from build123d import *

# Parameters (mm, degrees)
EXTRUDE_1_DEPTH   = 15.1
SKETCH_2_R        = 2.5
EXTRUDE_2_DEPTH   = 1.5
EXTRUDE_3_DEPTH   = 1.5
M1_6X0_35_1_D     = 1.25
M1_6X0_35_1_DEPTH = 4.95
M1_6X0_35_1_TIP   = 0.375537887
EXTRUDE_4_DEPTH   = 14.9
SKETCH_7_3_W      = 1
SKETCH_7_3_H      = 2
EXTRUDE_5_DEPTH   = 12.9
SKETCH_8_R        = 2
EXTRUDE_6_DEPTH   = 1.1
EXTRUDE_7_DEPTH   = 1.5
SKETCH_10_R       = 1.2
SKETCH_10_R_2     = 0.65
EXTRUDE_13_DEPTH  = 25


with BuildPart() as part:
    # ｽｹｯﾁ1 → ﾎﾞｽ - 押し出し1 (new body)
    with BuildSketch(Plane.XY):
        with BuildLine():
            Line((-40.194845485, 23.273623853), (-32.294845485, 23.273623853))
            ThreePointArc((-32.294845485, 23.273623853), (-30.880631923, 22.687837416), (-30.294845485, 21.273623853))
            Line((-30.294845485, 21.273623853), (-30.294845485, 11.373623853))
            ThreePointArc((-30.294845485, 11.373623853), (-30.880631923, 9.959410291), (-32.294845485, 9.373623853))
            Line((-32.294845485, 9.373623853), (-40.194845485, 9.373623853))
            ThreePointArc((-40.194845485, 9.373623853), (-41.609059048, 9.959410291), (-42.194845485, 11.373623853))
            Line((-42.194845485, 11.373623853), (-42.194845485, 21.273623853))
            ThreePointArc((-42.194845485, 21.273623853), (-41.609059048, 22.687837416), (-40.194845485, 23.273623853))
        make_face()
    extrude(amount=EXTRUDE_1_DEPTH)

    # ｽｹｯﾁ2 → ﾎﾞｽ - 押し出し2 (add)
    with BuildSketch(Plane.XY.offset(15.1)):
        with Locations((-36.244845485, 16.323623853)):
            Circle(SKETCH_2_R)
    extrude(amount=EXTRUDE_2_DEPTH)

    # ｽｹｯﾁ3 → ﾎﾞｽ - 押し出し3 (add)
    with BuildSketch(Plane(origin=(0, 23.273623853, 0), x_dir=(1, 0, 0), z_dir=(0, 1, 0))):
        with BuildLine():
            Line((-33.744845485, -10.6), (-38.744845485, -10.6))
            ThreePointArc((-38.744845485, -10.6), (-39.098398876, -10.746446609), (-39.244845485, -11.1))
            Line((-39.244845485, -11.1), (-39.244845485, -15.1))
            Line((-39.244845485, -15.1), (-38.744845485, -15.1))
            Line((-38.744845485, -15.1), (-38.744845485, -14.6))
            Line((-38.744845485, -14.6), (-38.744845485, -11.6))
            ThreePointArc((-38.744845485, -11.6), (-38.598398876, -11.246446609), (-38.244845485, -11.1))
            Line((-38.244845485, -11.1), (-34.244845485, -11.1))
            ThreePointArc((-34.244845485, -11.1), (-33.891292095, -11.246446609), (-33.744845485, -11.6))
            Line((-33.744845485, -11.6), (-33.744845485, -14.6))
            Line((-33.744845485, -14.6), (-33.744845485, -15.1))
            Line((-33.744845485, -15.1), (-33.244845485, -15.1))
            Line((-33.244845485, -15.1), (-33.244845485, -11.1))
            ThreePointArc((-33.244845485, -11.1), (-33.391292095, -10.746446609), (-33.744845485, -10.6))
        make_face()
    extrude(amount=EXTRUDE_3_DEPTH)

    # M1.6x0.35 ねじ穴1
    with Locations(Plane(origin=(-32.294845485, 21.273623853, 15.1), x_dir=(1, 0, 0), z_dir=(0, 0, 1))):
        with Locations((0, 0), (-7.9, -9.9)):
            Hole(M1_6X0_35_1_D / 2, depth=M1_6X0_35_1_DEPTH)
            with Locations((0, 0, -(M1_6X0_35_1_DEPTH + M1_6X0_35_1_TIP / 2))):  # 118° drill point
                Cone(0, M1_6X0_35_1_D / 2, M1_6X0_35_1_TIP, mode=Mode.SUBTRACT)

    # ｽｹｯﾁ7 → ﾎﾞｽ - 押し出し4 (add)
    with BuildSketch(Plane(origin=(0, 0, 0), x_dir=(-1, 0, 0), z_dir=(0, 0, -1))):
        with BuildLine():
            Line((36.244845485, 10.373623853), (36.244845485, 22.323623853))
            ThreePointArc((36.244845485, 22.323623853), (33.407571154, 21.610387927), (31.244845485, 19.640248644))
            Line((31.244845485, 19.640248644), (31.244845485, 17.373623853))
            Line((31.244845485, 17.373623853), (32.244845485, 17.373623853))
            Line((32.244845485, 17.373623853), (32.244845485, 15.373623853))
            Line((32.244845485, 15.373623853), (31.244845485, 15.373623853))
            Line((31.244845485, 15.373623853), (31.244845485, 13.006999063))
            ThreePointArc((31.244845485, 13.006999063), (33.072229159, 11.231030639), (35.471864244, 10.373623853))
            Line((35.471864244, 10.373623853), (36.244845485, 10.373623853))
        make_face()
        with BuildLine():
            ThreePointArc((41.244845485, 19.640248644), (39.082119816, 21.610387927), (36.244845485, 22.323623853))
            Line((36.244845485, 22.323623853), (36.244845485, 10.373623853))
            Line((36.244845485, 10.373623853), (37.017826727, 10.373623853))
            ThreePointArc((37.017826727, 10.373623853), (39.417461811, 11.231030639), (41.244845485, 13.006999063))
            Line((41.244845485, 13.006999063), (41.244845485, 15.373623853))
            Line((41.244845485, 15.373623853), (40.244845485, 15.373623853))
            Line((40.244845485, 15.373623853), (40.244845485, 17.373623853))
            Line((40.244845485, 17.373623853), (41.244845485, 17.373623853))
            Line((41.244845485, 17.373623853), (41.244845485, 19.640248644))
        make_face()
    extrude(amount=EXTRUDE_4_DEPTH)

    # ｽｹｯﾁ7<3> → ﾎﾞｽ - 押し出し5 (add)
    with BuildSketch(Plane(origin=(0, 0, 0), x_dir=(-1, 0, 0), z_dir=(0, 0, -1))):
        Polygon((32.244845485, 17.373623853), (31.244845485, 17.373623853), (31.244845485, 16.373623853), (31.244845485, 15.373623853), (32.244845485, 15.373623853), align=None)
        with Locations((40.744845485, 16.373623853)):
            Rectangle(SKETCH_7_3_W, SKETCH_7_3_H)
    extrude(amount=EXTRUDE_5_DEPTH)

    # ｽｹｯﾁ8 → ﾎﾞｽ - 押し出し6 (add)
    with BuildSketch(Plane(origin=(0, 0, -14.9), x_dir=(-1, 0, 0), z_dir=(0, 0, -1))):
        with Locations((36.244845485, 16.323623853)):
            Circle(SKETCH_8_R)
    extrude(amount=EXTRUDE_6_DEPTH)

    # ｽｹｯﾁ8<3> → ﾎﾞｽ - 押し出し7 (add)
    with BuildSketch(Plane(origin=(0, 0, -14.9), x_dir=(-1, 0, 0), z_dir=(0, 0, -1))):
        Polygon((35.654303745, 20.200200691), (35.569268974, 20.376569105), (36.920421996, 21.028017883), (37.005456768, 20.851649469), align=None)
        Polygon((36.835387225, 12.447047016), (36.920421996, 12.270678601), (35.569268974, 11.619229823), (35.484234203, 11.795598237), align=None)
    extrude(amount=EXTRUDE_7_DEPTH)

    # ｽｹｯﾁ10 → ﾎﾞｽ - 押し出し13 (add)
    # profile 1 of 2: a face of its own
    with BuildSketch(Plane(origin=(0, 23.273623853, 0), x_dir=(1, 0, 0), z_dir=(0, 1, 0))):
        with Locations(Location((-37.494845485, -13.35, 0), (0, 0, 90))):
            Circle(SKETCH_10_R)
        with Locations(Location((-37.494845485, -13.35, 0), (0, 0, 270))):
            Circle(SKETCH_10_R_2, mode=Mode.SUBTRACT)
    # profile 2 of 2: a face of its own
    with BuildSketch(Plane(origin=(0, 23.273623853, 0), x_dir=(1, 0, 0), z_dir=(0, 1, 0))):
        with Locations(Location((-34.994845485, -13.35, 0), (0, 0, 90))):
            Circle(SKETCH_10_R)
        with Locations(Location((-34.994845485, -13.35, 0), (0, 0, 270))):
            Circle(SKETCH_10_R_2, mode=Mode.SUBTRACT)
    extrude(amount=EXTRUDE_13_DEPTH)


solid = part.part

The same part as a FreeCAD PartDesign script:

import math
import FreeCAD as App
import Part
import Sketcher

V = App.Vector
Q = App.Units.Quantity


def add_polygon(sketch, points):
    """Adds a closed chain of lines whose ends are joined by coincident constraints."""
    first, n = sketch.GeometryCount, len(points)
    for a, b in zip(points, points[1:] + points[:1]):
        sketch.addGeometry(Part.LineSegment(App.Vector(*a, 0), App.Vector(*b, 0)), False)
    for i in range(n):
        sketch.addConstraint(Sketcher.Constraint("Coincident", first + i, 2, first + (i + 1) % n, 1))

doc = App.newDocument("Part")
params = doc.addObject("Spreadsheet::Sheet", "Params")
for row, (alias, value) in enumerate([
    ("sketch1_radius", "2 mm"),
    ("sketch1_width", "7.9 mm"),
    ("sketch1_height", "9.9 mm"),
    ("pad1_length", "15.1 mm"),
    ("sketch2_diameter", "5 mm"),
    ("pad2_length", "1.5 mm"),
    ("sketch3_radius", "0.5 mm"),
    ("sketch3_width", "5 mm"),
    ("pad3_length", "1.5 mm"),
    ("sketch4_diameter", "1.25 mm"),
    ("hole_diameter", "1.25 mm"),
    ("hole_depth", "4.95 mm"),
    ("sketch5_radius", "6 mm"),
    ("sketch5_width", "1 mm"),
    ("sketch5_height", "2 mm"),
    ("pad4_length", "14.9 mm"),
    ("sketch6_width", "1 mm"),
    ("sketch6_height", "2 mm"),
    ("pad5_length", "12.9 mm"),
    ("sketch7_diameter", "4 mm"),
    ("pad6_length", "1.1 mm"),
    ("sketch8_length", "1.5 mm"),
    ("pad7_length", "1.5 mm"),
    ("sketch9_diameter", "2.4 mm"),
    ("sketch9_diameter2", "1.3 mm"),
    ("pad8_length", "25 mm"),
], start=1):
    params.set(f"A{row}", alias)
    params.set(f"B{row}", "=" + value)
    params.setAlias(f"B{row}", alias)

body = doc.addObject("PartDesign::Body", "Body")

sketch1 = body.newObject("Sketcher::SketchObject", "Sketch")
sketch1.AttachmentSupport = (doc.getObject("XY_Plane"), [""])
sketch1.MapMode = "FlatFace"
sketch1.addGeometry(Part.LineSegment(V(-32.3, 23.3, 0), V(-40.2, 23.3, 0)), False)
sketch1.addGeometry(Part.ArcOfCircle(Part.Circle(V(-40.2, 21.3, 0), V(0, 0, 1), 2), math.radians(90), math.radians(180)), False)
sketch1.addGeometry(Part.LineSegment(V(-42.2, 21.3, 0), V(-42.2, 11.4, 0)), False)
sketch1.addGeometry(Part.ArcOfCircle(Part.Circle(V(-40.2, 11.4, 0), V(0, 0, 1), 2), math.radians(180), math.radians(270)), False)
sketch1.addGeometry(Part.LineSegment(V(-40.2, 9.4, 0), V(-32.3, 9.4, 0)), False)
sketch1.addGeometry(Part.ArcOfCircle(Part.Circle(V(-32.3, 11.4, 0), V(0, 0, 1), 2), math.radians(-90), math.radians(0)), False)
sketch1.addGeometry(Part.LineSegment(V(-30.3, 11.4, 0), V(-30.3, 21.3, 0)), False)
sketch1.addGeometry(Part.ArcOfCircle(Part.Circle(V(-32.3, 21.3, 0), V(0, 0, 1), 2), math.radians(0), math.radians(90)), False)
sketch1.addConstraint(Sketcher.Constraint("Tangent", 0, 2, 1, 1))
sketch1.addConstraint(Sketcher.Constraint("Tangent", 1, 2, 2, 1))
sketch1.addConstraint(Sketcher.Constraint("Tangent", 2, 2, 3, 1))
sketch1.addConstraint(Sketcher.Constraint("Tangent", 3, 2, 4, 1))
sketch1.addConstraint(Sketcher.Constraint("Tangent", 4, 2, 5, 1))
sketch1.addConstraint(Sketcher.Constraint("Tangent", 5, 2, 6, 1))
sketch1.addConstraint(Sketcher.Constraint("Tangent", 6, 2, 7, 1))
sketch1.addConstraint(Sketcher.Constraint("Tangent", 7, 2, 0, 1))
sketch1.addConstraint(Sketcher.Constraint("Horizontal", 0))
sketch1.addConstraint(Sketcher.Constraint("Vertical", 2))
sketch1.addConstraint(Sketcher.Constraint("Horizontal", 4))
sketch1.addConstraint(Sketcher.Constraint("Vertical", 6))
sketch1.addConstraint(Sketcher.Constraint("Equal", 1, 3))
sketch1.addConstraint(Sketcher.Constraint("Equal", 3, 5))
sketch1.addConstraint(Sketcher.Constraint("Equal", 5, 7))
sketch1.addConstraint(Sketcher.Constraint("Radius", 1, Q("2 mm")))
sketch1.addConstraint(Sketcher.Constraint("DistanceX", 0, 2, 0, 1, Q("7.9 mm")))
sketch1.addConstraint(Sketcher.Constraint("DistanceY", 2, 2, 2, 1, Q("9.9 mm")))
sketch1.addConstraint(Sketcher.Constraint("DistanceX", 1, 3, -1, 1, Q("40.194845 mm")))
sketch1.addConstraint(Sketcher.Constraint("DistanceY", -1, 1, 1, 3, Q("21.273624 mm")))
sketch1.setExpression("Constraints[15]", "Params.sketch1_radius")
sketch1.setExpression("Constraints[16]", "Params.sketch1_width")
sketch1.setExpression("Constraints[17]", "Params.sketch1_height")
pad1 = body.newObject("PartDesign::Pad", "Pad")
pad1.Profile = sketch1
pad1.setExpression("Length", "Params.pad1_length")

sketch2 = body.newObject("Sketcher::SketchObject", "Sketch001")
sketch2.AttachmentSupport = (doc.getObject("XY_Plane"), [""])
sketch2.MapMode = "FlatFace"
sketch2.AttachmentOffset = App.Placement(V(0, 0, 15.1), App.Rotation())
sketch2.addGeometry(Part.Circle(V(-36.2, 16.3, 0), V(0, 0, 1), 2.5), False)
sketch2.addConstraint(Sketcher.Constraint("Diameter", 0, Q("5 mm")))
sketch2.addConstraint(Sketcher.Constraint("DistanceX", 0, 3, -1, 1, Q("36.244845 mm")))
sketch2.addConstraint(Sketcher.Constraint("DistanceY", -1, 1, 0, 3, Q("16.323624 mm")))
sketch2.setExpression("Constraints[0]", "Params.sketch2_diameter")
pad2 = body.newObject("PartDesign::Pad", "Pad001")
pad2.Profile = sketch2
pad2.setExpression("Length", "Params.pad2_length")

sketch3 = body.newObject("Sketcher::SketchObject", "Sketch002")
sketch3.AttachmentSupport = (doc.getObject("XZ_Plane"), [""])
sketch3.MapMode = "FlatFace"
sketch3.AttachmentOffset = App.Placement(V(0, 0, -23.273624), App.Rotation())
sketch3.addGeometry(Part.LineSegment(V(-33.74, 10.6, 0), V(-38.74, 10.6, 0)), False)
sketch3.addGeometry(Part.ArcOfCircle(Part.Circle(V(-38.74, 11.1, 0), V(0, 0, 1), 0.5), math.radians(180), math.radians(270)), False)
sketch3.addGeometry(Part.LineSegment(V(-39.24, 11.1, 0), V(-39.24, 15.1, 0)), False)
sketch3.addGeometry(Part.LineSegment(V(-39.24, 15.1, 0), V(-38.74, 15.1, 0)), False)
sketch3.addGeometry(Part.LineSegment(V(-38.74, 15.1, 0), V(-38.74, 11.6, 0)), False)
sketch3.addGeometry(Part.ArcOfCircle(Part.Circle(V(-38.24, 11.6, 0), V(0, 0, 1), 0.5), math.radians(180), math.radians(270)), False)
sketch3.addGeometry(Part.LineSegment(V(-38.24, 11.1, 0), V(-34.24, 11.1, 0)), False)
sketch3.addGeometry(Part.ArcOfCircle(Part.Circle(V(-34.24, 11.6, 0), V(0, 0, 1), 0.5), math.radians(-90), math.radians(0)), False)
sketch3.addGeometry(Part.LineSegment(V(-33.74, 11.6, 0), V(-33.74, 15.1, 0)), False)
sketch3.addGeometry(Part.LineSegment(V(-33.74, 15.1, 0), V(-33.24, 15.1, 0)), False)
sketch3.addGeometry(Part.LineSegment(V(-33.24, 15.1, 0), V(-33.24, 11.1, 0)), False)
sketch3.addGeometry(Part.ArcOfCircle(Part.Circle(V(-33.74, 11.1, 0), V(0, 0, 1), 0.5), math.radians(-90), math.radians(0)), False)
sketch3.addConstraint(Sketcher.Constraint("Tangent", 0, 2, 1, 2))
sketch3.addConstraint(Sketcher.Constraint("Tangent", 1, 1, 2, 1))
sketch3.addConstraint(Sketcher.Constraint("Coincident", 2, 2, 3, 1))
sketch3.addConstraint(Sketcher.Constraint("Coincident", 3, 2, 4, 1))
sketch3.addConstraint(Sketcher.Constraint("Tangent", 4, 2, 5, 1))
sketch3.addConstraint(Sketcher.Constraint("Tangent", 5, 2, 6, 1))
sketch3.addConstraint(Sketcher.Constraint("Tangent", 6, 2, 7, 1))
sketch3.addConstraint(Sketcher.Constraint("Tangent", 7, 2, 8, 1))
sketch3.addConstraint(Sketcher.Constraint("Coincident", 8, 2, 9, 1))
sketch3.addConstraint(Sketcher.Constraint("Coincident", 9, 2, 10, 1))
sketch3.addConstraint(Sketcher.Constraint("Tangent", 10, 2, 11, 2))
sketch3.addConstraint(Sketcher.Constraint("Tangent", 11, 1, 0, 1))
sketch3.addConstraint(Sketcher.Constraint("Horizontal", 0))
sketch3.addConstraint(Sketcher.Constraint("Vertical", 2))
sketch3.addConstraint(Sketcher.Constraint("Horizontal", 3))
sketch3.addConstraint(Sketcher.Constraint("Vertical", 4))
sketch3.addConstraint(Sketcher.Constraint("Horizontal", 6))
sketch3.addConstraint(Sketcher.Constraint("Vertical", 8))
sketch3.addConstraint(Sketcher.Constraint("Horizontal", 9))
sketch3.addConstraint(Sketcher.Constraint("Vertical", 10))
sketch3.addConstraint(Sketcher.Constraint("Equal", 1, 5))
sketch3.addConstraint(Sketcher.Constraint("Equal", 5, 7))
sketch3.addConstraint(Sketcher.Constraint("Equal", 7, 11))
sketch3.addConstraint(Sketcher.Constraint("Horizontal", 1, 1, 5, 2))
sketch3.addConstraint(Sketcher.Constraint("Horizontal", 3, 2, 8, 2))
sketch3.addConstraint(Sketcher.Constraint("Vertical", 0, 2, 3, 2))
sketch3.addConstraint(Sketcher.Constraint("Vertical", 11, 3, 7, 2))
sketch3.addConstraint(Sketcher.Constraint("Equal", 6, 2))
sketch3.addConstraint(Sketcher.Constraint("Radius", 1, Q("0.5 mm")))
sketch3.addConstraint(Sketcher.Constraint("DistanceX", 0, 2, 0, 1, Q("5 mm")))
sketch3.addConstraint(Sketcher.Constraint("DistanceY", -1, 1, 1, 3, Q("11.1 mm")))
sketch3.addConstraint(Sketcher.Constraint("DistanceX", 1, 3, -1, 1, Q("38.744845 mm")))
sketch3.setExpression("Constraints[28]", "Params.sketch3_radius")
sketch3.setExpression("Constraints[29]", "Params.sketch3_width")
pad3 = body.newObject("PartDesign::Pad", "Pad002")
pad3.Profile = sketch3
pad3.setExpression("Length", "Params.pad3_length")
pad3.Reversed = True

sketch4 = body.newObject("Sketcher::SketchObject", "Sketch003")
sketch4.AttachmentSupport = (doc.getObject("XY_Plane"), [""])
sketch4.MapMode = "FlatFace"
sketch4.AttachmentOffset = App.Placement(V(0, 0, 15.1), App.Rotation())
sketch4.addGeometry(Part.Circle(V(-32.3, 21.3, 0), V(0, 0, 1), 0.6), False)
sketch4.addGeometry(Part.Circle(V(-40.2, 11.4, 0), V(0, 0, 1), 0.6), False)
sketch4.addConstraint(Sketcher.Constraint("Equal", 0, 1))
sketch4.addConstraint(Sketcher.Constraint("Diameter", 0, Q("1.25 mm")))
sketch4.addConstraint(Sketcher.Constraint("DistanceX", 1, 3, 0, 3, Q("7.9 mm")))
sketch4.addConstraint(Sketcher.Constraint("DistanceY", 1, 3, 0, 3, Q("9.9 mm")))
sketch4.addConstraint(Sketcher.Constraint("DistanceX", 0, 3, -1, 1, Q("32.294845 mm")))
sketch4.addConstraint(Sketcher.Constraint("DistanceY", -1, 1, 0, 3, Q("21.273624 mm")))
sketch4.setExpression("Constraints[1]", "Params.sketch4_diameter")
doc.recompute()
hole = body.newObject("PartDesign::Hole", "Hole")
hole.Profile = sketch4
hole.ThreadType = "None"
hole.setExpression("Diameter", "Params.hole_diameter")
hole.DepthType = "Dimension"
hole.setExpression("Depth", "Params.hole_depth")
hole.DrillPoint = "Angled"
hole.DrillPointAngle = 118

sketch5 = body.newObject("Sketcher::SketchObject", "Sketch004")
sketch5.AttachmentSupport = (doc.getObject("XY_Plane"), [""])
sketch5.MapMode = "FlatFace"
sketch5.addGeometry(Part.ArcOfCircle(Part.Circle(V(-36.2, 16.3, 0), V(0, 0, 1), 6), math.radians(34), math.radians(90)), False)
sketch5.addGeometry(Part.LineSegment(V(-31.2, 19.6, 0), V(-31.2, 17.4, 0)), False)
sketch5.addGeometry(Part.LineSegment(V(-31.2, 17.4, 0), V(-32.2, 17.4, 0)), False)
sketch5.addGeometry(Part.LineSegment(V(-32.2, 17.4, 0), V(-32.2, 15.4, 0)), False)
sketch5.addGeometry(Part.LineSegment(V(-32.2, 15.4, 0), V(-31.2, 15.4, 0)), False)
sketch5.addGeometry(Part.LineSegment(V(-31.2, 15.4, 0), V(-31.2, 13, 0)), False)
sketch5.addGeometry(Part.ArcOfCircle(Part.Circle(V(-36.2, 16.3, 0), V(0, 0, 1), 6), math.radians(-83), math.radians(-34)), False)
sketch5.addGeometry(Part.LineSegment(V(-35.5, 10.4, 0), V(-37, 10.4, 0)), False)
sketch5.addGeometry(Part.ArcOfCircle(Part.Circle(V(-36.2, 16.3, 0), V(0, 0, 1), 6), math.radians(-146), math.radians(-97)), False)
sketch5.addGeometry(Part.LineSegment(V(-41.2, 13, 0), V(-41.2, 15.4, 0)), False)
sketch5.addGeometry(Part.LineSegment(V(-41.2, 15.4, 0), V(-40.2, 15.4, 0)), False)
sketch5.addGeometry(Part.LineSegment(V(-40.2, 15.4, 0), V(-40.2, 17.4, 0)), False)
sketch5.addGeometry(Part.LineSegment(V(-40.2, 17.4, 0), V(-41.2, 17.4, 0)), False)
sketch5.addGeometry(Part.LineSegment(V(-41.2, 17.4, 0), V(-41.2, 19.6, 0)), False)
sketch5.addGeometry(Part.ArcOfCircle(Part.Circle(V(-36.2, 16.3, 0), V(0, 0, 1), 6), math.radians(90), math.radians(146)), False)
sketch5.addConstraint(Sketcher.Constraint("Coincident", 0, 1, 1, 1))
sketch5.addConstraint(Sketcher.Constraint("Coincident", 1, 2, 2, 1))
sketch5.addConstraint(Sketcher.Constraint("Coincident", 2, 2, 3, 1))
sketch5.addConstraint(Sketcher.Constraint("Coincident", 3, 2, 4, 1))
sketch5.addConstraint(Sketcher.Constraint("Coincident", 4, 2, 5, 1))
sketch5.addConstraint(Sketcher.Constraint("Coincident", 5, 2, 6, 2))
sketch5.addConstraint(Sketcher.Constraint("Coincident", 6, 1, 7, 1))
sketch5.addConstraint(Sketcher.Constraint("Coincident", 7, 2, 8, 2))
sketch5.addConstraint(Sketcher.Constraint("Coincident", 8, 1, 9, 1))
sketch5.addConstraint(Sketcher.Constraint("Coincident", 9, 2, 10, 1))
sketch5.addConstraint(Sketcher.Constraint("Coincident", 10, 2, 11, 1))
sketch5.addConstraint(Sketcher.Constraint("Coincident", 11, 2, 12, 1))
sketch5.addConstraint(Sketcher.Constraint("Coincident", 12, 2, 13, 1))
sketch5.addConstraint(Sketcher.Constraint("Coincident", 13, 2, 14, 2))
sketch5.addConstraint(Sketcher.Constraint("Tangent", 14, 1, 0, 2))
sketch5.addConstraint(Sketcher.Constraint("Vertical", 1))
sketch5.addConstraint(Sketcher.Constraint("Horizontal", 2))
sketch5.addConstraint(Sketcher.Constraint("Vertical", 3))
sketch5.addConstraint(Sketcher.Constraint("Horizontal", 4))
sketch5.addConstraint(Sketcher.Constraint("Vertical", 5))
sketch5.addConstraint(Sketcher.Constraint("Horizontal", 7))
sketch5.addConstraint(Sketcher.Constraint("Vertical", 9))
sketch5.addConstraint(Sketcher.Constraint("Horizontal", 10))
sketch5.addConstraint(Sketcher.Constraint("Vertical", 11))
sketch5.addConstraint(Sketcher.Constraint("Horizontal", 12))
sketch5.addConstraint(Sketcher.Constraint("Vertical", 13))
sketch5.addConstraint(Sketcher.Constraint("Coincident", 6, 3, 0, 3))
sketch5.addConstraint(Sketcher.Constraint("Coincident", 8, 3, 0, 3))
sketch5.addConstraint(Sketcher.Constraint("Equal", 0, 6))
sketch5.addConstraint(Sketcher.Constraint("Equal", 6, 8))
sketch5.addConstraint(Sketcher.Constraint("Equal", 8, 14))
sketch5.addConstraint(Sketcher.Constraint("Horizontal", 5, 2, 8, 1))
sketch5.addConstraint(Sketcher.Constraint("Horizontal", 4, 2, 9, 2))
sketch5.addConstraint(Sketcher.Constraint("Horizontal", 2, 2, 11, 2))
sketch5.addConstraint(Sketcher.Constraint("Horizontal", 0, 1, 13, 2))
sketch5.addConstraint(Sketcher.Constraint("Vertical", 1, 2, 4, 2))
sketch5.addConstraint(Sketcher.Constraint("Vertical", 8, 3, 14, 1))
sketch5.addConstraint(Sketcher.Constraint("Equal", 4, 10))
sketch5.addConstraint(Sketcher.Constraint("Radius", 0, Q("6 mm")))
sketch5.addConstraint(Sketcher.Constraint("DistanceX", 2, 2, 2, 1, Q("1 mm")))
sketch5.addConstraint(Sketcher.Constraint("DistanceY", 3, 2, 3, 1, Q("2 mm")))
sketch5.addConstraint(Sketcher.Constraint("DistanceX", 8, 3, 0, 1, Q("5 mm")))
sketch5.addConstraint(Sketcher.Constraint("DistanceY", 6, 1, 3, 2, Q("5 mm")))
sketch5.addConstraint(Sketcher.Constraint("DistanceY", 8, 3, 1, 2, Q("1.05 mm")))
sketch5.addConstraint(Sketcher.Constraint("DistanceY", -1, 1, 5, 2, Q("13.006999 mm")))
sketch5.addConstraint(Sketcher.Constraint("DistanceX", 0, 3, -1, 1, Q("36.244845 mm")))
sketch5.setExpression("Constraints[38]", "Params.sketch5_radius")
sketch5.setExpression("Constraints[39]", "Params.sketch5_width")
sketch5.setExpression("Constraints[40]", "Params.sketch5_height")
pad4 = body.newObject("PartDesign::Pad", "Pad003")
pad4.Profile = sketch5
pad4.setExpression("Length", "Params.pad4_length")
pad4.Reversed = True

sketch6 = body.newObject("Sketcher::SketchObject", "Sketch005")
sketch6.AttachmentSupport = (doc.getObject("XY_Plane"), [""])
sketch6.MapMode = "FlatFace"
add_polygon(sketch6, [(-32.2, 17.4), (-31.2, 17.4), (-31.2, 15.4), (-32.2, 15.4)])
add_polygon(sketch6, [(-40.2, 17.4), (-40.2, 15.4), (-41.2, 15.4), (-41.2, 17.4)])
sketch6.addConstraint(Sketcher.Constraint("Horizontal", 0))
sketch6.addConstraint(Sketcher.Constraint("Vertical", 1))
sketch6.addConstraint(Sketcher.Constraint("Horizontal", 2))
sketch6.addConstraint(Sketcher.Constraint("Vertical", 3))
sketch6.addConstraint(Sketcher.Constraint("Vertical", 4))
sketch6.addConstraint(Sketcher.Constraint("Horizontal", 5))
sketch6.addConstraint(Sketcher.Constraint("Vertical", 6))
sketch6.addConstraint(Sketcher.Constraint("Horizontal", 7))
sketch6.addConstraint(Sketcher.Constraint("Horizontal", 2, 2, 4, 2))
sketch6.addConstraint(Sketcher.Constraint("Horizontal", 3, 2, 6, 2))
sketch6.addConstraint(Sketcher.Constraint("Equal", 2, 5))
sketch6.addConstraint(Sketcher.Constraint("DistanceX", 0, 1, 0, 2, Q("1 mm")))
sketch6.addConstraint(Sketcher.Constraint("DistanceY", 1, 2, 1, 1, Q("2 mm")))
sketch6.addConstraint(Sketcher.Constraint("DistanceX", 4, 2, 2, 2, Q("8 mm")))
sketch6.addConstraint(Sketcher.Constraint("DistanceX", 0, 2, -1, 1, Q("31.244845 mm")))
sketch6.addConstraint(Sketcher.Constraint("DistanceY", -1, 1, 0, 2, Q("17.373624 mm")))
sketch6.setExpression("Constraints[19]", "Params.sketch6_width")
sketch6.setExpression("Constraints[20]", "Params.sketch6_height")
pad5 = body.newObject("PartDesign::Pad", "Pad004")
pad5.Profile = sketch6
pad5.setExpression("Length", "Params.pad5_length")
pad5.Reversed = True

sketch7 = body.newObject("Sketcher::SketchObject", "Sketch006")
sketch7.AttachmentSupport = (doc.getObject("XY_Plane"), [""])
sketch7.MapMode = "FlatFace"
sketch7.AttachmentOffset = App.Placement(V(0, 0, -14.9), App.Rotation())
sketch7.addGeometry(Part.Circle(V(-36.2, 16.3, 0), V(0, 0, 1), 2), False)
sketch7.addConstraint(Sketcher.Constraint("Diameter", 0, Q("4 mm")))
sketch7.addConstraint(Sketcher.Constraint("DistanceX", 0, 3, -1, 1, Q("36.244845 mm")))
sketch7.addConstraint(Sketcher.Constraint("DistanceY", -1, 1, 0, 3, Q("16.323624 mm")))
sketch7.setExpression("Constraints[0]", "Params.sketch7_diameter")
pad6 = body.newObject("PartDesign::Pad", "Pad005")
pad6.Profile = sketch7
pad6.setExpression("Length", "Params.pad6_length")
pad6.Reversed = True

sketch8 = body.newObject("Sketcher::SketchObject", "Sketch007")
sketch8.AttachmentSupport = (doc.getObject("XY_Plane"), [""])
sketch8.MapMode = "FlatFace"
sketch8.AttachmentOffset = App.Placement(V(0, 0, -14.9), App.Rotation())
add_polygon(sketch8, [(-35.57, 20.38), (-35.65, 20.2), (-37.01, 20.85), (-36.92, 21.03)])
add_polygon(sketch8, [(-36.92, 12.27), (-36.84, 12.45), (-35.48, 11.8), (-35.57, 11.62)])
sketch8.addConstraint(Sketcher.Constraint("Perpendicular", 0, 1))
sketch8.addConstraint(Sketcher.Constraint("Perpendicular", 1, 2))
sketch8.addConstraint(Sketcher.Constraint("Perpendicular", 2, 3))
sketch8.addConstraint(Sketcher.Constraint("Perpendicular", 3, 4))
sketch8.addConstraint(Sketcher.Constraint("Perpendicular", 4, 5))
sketch8.addConstraint(Sketcher.Constraint("Perpendicular", 5, 6))
sketch8.addConstraint(Sketcher.Constraint("Perpendicular", 6, 7))
sketch8.addConstraint(Sketcher.Constraint("Vertical", 3, 2, 6, 2))
sketch8.addConstraint(Sketcher.Constraint("Vertical", 2, 2, 7, 2))
sketch8.addConstraint(Sketcher.Constraint("Equal", 2, 4))
sketch8.addConstraint(Sketcher.Constraint("Distance", 1, Q("1.5 mm")))
sketch8.addConstraint(Sketcher.Constraint("DistanceY", -1, 1, 0, 2, Q("20.200201 mm")))
sketch8.addConstraint(Sketcher.Constraint("DistanceY", -1, 1, 5, 2, Q("11.795598 mm")))
sketch8.addConstraint(Sketcher.Constraint("DistanceY", -1, 1, 1, 2, Q("20.851649 mm")))
sketch8.addConstraint(Sketcher.Constraint("DistanceX", 2, 2, -1, 1, Q("36.920422 mm")))
sketch8.addConstraint(Sketcher.Constraint("DistanceY", -1, 1, 3, 2, Q("20.376569 mm")))
sketch8.setExpression("Constraints[18]", "Params.sketch8_length")
pad7 = body.newObject("PartDesign::Pad", "Pad006")
pad7.Profile = sketch8
pad7.setExpression("Length", "Params.pad7_length")
pad7.Reversed = True

sketch9 = body.newObject("Sketcher::SketchObject", "Sketch008")
sketch9.AttachmentSupport = (doc.getObject("XZ_Plane"), [""])
sketch9.MapMode = "FlatFace"
sketch9.AttachmentOffset = App.Placement(V(0, 0, -23.273624), App.Rotation())
sketch9.addGeometry(Part.Circle(V(-37.5, 13.3, 0), V(0, 0, 1), 1.2), False)
sketch9.addGeometry(Part.Circle(V(-37.5, 13.3, 0), V(0, 0, 1), 0.7), False)
sketch9.addGeometry(Part.Circle(V(-35, 13.3, 0), V(0, 0, 1), 1.2), False)
sketch9.addGeometry(Part.Circle(V(-35, 13.3, 0), V(0, 0, 1), 0.7), False)
sketch9.addConstraint(Sketcher.Constraint("Coincident", 1, 3, 0, 3))
sketch9.addConstraint(Sketcher.Constraint("Coincident", 3, 3, 2, 3))
sketch9.addConstraint(Sketcher.Constraint("Equal", 0, 2))
sketch9.addConstraint(Sketcher.Constraint("Equal", 1, 3))
sketch9.addConstraint(Sketcher.Constraint("Horizontal", 1, 3, 2, 3))
sketch9.addConstraint(Sketcher.Constraint("Diameter", 0, Q("2.4 mm")))
sketch9.addConstraint(Sketcher.Constraint("Diameter", 1, Q("1.3 mm")))
sketch9.addConstraint(Sketcher.Constraint("DistanceX", 0, 3, 2, 3, Q("2.5 mm")))
sketch9.addConstraint(Sketcher.Constraint("DistanceY", -1, 1, 0, 3, Q("13.35 mm")))
sketch9.addConstraint(Sketcher.Constraint("DistanceX", 0, 3, -1, 1, Q("37.494845 mm")))
sketch9.setExpression("Constraints[5]", "Params.sketch9_diameter")
sketch9.setExpression("Constraints[6]", "Params.sketch9_diameter2")
pad8 = body.newObject("PartDesign::Pad", "Pad007")
pad8.Profile = sketch9
pad8.setExpression("Length", "Params.pad8_length")
pad8.Reversed = True

doc.recompute()
